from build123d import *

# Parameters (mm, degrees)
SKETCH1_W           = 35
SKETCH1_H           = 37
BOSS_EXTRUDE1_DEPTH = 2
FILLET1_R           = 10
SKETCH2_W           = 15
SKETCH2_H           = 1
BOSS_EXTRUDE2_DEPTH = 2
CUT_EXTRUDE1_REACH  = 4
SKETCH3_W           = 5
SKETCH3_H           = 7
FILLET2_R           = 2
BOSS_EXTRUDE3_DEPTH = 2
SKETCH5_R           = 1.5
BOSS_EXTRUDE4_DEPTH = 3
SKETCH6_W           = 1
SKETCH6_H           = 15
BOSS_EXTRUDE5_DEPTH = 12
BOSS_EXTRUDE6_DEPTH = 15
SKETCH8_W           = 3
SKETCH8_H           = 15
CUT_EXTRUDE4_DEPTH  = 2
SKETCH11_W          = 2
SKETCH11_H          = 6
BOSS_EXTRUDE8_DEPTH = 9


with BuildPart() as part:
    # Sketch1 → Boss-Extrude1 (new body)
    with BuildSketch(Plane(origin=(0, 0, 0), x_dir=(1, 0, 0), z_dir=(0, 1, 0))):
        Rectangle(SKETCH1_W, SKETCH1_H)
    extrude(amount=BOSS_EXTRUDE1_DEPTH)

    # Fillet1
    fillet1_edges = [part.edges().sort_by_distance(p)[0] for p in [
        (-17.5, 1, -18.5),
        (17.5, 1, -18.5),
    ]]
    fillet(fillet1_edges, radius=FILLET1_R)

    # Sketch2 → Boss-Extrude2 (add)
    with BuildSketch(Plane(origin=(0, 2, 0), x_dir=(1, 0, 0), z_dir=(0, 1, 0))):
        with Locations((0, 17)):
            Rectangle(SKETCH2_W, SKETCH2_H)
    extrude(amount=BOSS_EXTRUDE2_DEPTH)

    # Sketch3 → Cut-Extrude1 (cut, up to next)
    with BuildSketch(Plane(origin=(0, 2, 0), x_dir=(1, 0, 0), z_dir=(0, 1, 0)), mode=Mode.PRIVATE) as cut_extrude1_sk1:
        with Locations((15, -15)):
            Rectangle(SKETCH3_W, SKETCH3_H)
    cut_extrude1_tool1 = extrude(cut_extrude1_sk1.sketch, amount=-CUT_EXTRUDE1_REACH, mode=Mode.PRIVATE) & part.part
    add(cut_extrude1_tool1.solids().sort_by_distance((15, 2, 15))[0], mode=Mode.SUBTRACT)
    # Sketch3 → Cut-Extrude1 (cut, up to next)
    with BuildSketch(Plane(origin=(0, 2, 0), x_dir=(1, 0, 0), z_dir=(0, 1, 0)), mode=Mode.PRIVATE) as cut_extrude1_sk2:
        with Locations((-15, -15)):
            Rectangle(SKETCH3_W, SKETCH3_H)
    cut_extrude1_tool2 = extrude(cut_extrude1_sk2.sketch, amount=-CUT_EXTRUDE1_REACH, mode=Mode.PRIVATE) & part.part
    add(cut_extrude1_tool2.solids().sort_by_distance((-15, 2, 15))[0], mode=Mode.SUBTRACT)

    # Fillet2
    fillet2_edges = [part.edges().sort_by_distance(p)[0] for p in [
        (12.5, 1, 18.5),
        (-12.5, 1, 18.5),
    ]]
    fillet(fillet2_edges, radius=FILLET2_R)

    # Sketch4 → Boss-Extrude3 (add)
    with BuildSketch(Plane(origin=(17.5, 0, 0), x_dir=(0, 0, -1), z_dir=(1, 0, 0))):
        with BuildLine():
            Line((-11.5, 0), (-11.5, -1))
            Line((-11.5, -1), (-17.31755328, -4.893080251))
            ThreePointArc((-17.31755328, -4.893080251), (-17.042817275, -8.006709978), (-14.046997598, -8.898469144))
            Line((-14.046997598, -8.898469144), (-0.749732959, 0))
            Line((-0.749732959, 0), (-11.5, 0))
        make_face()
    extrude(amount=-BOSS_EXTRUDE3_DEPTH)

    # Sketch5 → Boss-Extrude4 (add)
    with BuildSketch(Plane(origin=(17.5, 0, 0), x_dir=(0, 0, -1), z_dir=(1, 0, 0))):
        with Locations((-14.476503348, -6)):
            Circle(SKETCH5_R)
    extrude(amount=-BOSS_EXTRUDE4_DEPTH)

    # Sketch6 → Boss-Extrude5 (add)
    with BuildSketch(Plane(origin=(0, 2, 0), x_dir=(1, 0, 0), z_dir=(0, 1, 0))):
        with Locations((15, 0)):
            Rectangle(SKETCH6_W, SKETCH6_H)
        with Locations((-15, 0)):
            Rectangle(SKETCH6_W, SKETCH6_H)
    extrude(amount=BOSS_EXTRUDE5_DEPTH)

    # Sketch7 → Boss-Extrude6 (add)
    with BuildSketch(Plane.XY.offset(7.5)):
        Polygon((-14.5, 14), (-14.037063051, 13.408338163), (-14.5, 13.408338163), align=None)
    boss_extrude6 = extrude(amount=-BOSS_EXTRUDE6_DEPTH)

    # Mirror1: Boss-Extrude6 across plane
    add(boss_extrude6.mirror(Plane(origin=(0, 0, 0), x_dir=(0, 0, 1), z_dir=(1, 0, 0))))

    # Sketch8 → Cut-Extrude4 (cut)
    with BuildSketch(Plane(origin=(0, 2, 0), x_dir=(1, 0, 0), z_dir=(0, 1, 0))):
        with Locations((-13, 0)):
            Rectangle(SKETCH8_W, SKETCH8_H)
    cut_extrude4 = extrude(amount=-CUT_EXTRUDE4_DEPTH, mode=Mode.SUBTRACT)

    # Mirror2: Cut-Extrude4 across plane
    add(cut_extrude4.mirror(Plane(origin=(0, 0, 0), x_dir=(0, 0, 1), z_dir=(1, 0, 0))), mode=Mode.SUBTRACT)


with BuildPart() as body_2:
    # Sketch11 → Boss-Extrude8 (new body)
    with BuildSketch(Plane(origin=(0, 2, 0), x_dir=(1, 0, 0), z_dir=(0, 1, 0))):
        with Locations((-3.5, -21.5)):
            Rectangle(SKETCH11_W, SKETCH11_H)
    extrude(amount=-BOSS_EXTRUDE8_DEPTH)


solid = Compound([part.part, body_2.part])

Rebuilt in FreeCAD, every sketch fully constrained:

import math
import FreeCAD as App
import Part
import Sketcher


def edges_at(feature, points):
    """Names of the edges that pass closest to the given points."""
    edges = feature.Shape.Edges
    near = lambda p: min(range(len(edges)), key=lambda i: edges[i].distToShape(Part.Vertex(*p))[0])
    return sorted({f"Edge{near(p) + 1}" for p in points})


def add_polygon(sketch, points):
    """Adds a closed chain of lines whose ends are joined by coincident constraints."""
    first, n = sketch.GeometryCount, len(points)
    for a, b in zip(points, points[1:] + points[:1]):
        sketch.addGeometry(Part.LineSegment(App.Vector(*a, 0), App.Vector(*b, 0)), False)
    for i in range(n):
        sketch.addConstraint(Sketcher.Constraint("Coincident", first + i, 2, first + (i + 1) % n, 1))

doc = App.newDocument("Part")
body = doc.addObject("PartDesign::Body", "Body")

sketch1 = body.newObject("Sketcher::SketchObject", "Sketch")
sketch1.AttachmentSupport = (doc.getObject("XZ_Plane"), [""])
sketch1.MapMode = "FlatFace"
add_polygon(sketch1, [(-18, -18), (-18, 18), (18, 18), (18, -18)])
sketch1.addConstraint([
    Sketcher.Constraint("Vertical", 0),
    Sketcher.Constraint("Horizontal", 1),
    Sketcher.Constraint("Vertical", 2),
    Sketcher.Constraint("Horizontal", 3),
    Sketcher.Constraint("Symmetric", 0, 2, 2, 2, -1, 1),
    Sketcher.Constraint("DistanceX", 1, 1, 1, 2, 35.0),
    Sketcher.Constraint("DistanceY", 0, 1, 0, 2, 37.0),
])
pad1 = body.newObject("PartDesign::Pad", "Pad")
pad1.Profile = sketch1
pad1.Length = 2
pad1.Reversed = True
doc.recompute()

fillet = body.newObject("PartDesign::Fillet", "Fillet")
fillet.Base = (pad1, edges_at(pad1, [(-17.5, 1, -18.5), (17.5, 1, -18.5)]))
fillet.Radius = 10

sketch2 = body.newObject("Sketcher::SketchObject", "Sketch001")
sketch2.AttachmentSupport = (doc.getObject("XZ_Plane"), [""])
sketch2.MapMode = "FlatFace"
sketch2.AttachmentOffset = App.Placement(App.Vector(0, 0, -2), App.Rotation())
add_polygon(sketch2, [(-7.5, -17.5), (-7.5, -16.5), (7.5, -16.5), (7.5, -17.5)])
sketch2.addConstraint([
    Sketcher.Constraint("Vertical", 0),
    Sketcher.Constraint("Horizontal", 1),
    Sketcher.Constraint("Vertical", 2),
    Sketcher.Constraint("Horizontal", 3),
    Sketcher.Constraint("DistanceX", 1, 1, 1, 2, 15.0),
    Sketcher.Constraint("DistanceY", 0, 1, 0, 2, 1.0),
    Sketcher.Constraint("DistanceX", 0, 2, -1, 1, 7.5),
    Sketcher.Constraint("DistanceY", 0, 2, -1, 1, 16.5),
])
pad2 = body.newObject("PartDesign::Pad", "Pad001")
pad2.Profile = sketch2
pad2.Length = 2
pad2.Reversed = True

sketch3 = body.newObject("Sketcher::SketchObject", "Sketch002")
sketch3.AttachmentSupport = (doc.getObject("XZ_Plane"), [""])
sketch3.MapMode = "FlatFace"
sketch3.AttachmentOffset = App.Placement(App.Vector(0, 0, -2), App.Rotation())
add_polygon(sketch3, [(12, 12), (12, 18), (18, 18), (18, 12)])
sketch3.addConstraint([
    Sketcher.Constraint("Vertical", 0),
    Sketcher.Constraint("Horizontal", 1),
    Sketcher.Constraint("Vertical", 2),
    Sketcher.Constraint("Horizontal", 3),
    Sketcher.Constraint("DistanceX", 1, 1, 1, 2, 5.0),
    Sketcher.Constraint("DistanceY", 0, 1, 0, 2, 7.0),
    Sketcher.Constraint("DistanceX", -1, 1, 0, 2, 12.5),
    Sketcher.Constraint("DistanceY", -1, 1, 0, 2, 18.5),
])
pocket1 = body.newObject("PartDesign::Pocket", "Pocket")
pocket1.Profile = sketch3
pocket1.Type = "UpToFirst"
pocket1.Reversed = True

sketch4 = body.newObject("Sketcher::SketchObject", "Sketch003")
sketch4.AttachmentSupport = (doc.getObject("XZ_Plane"), [""])
sketch4.MapMode = "FlatFace"
sketch4.AttachmentOffset = App.Placement(App.Vector(0, 0, -2), App.Rotation())
add_polygon(sketch4, [(-18, 12), (-18, 18), (-12, 18), (-12, 12)])
sketch4.addConstraint([
    Sketcher.Constraint("Vertical", 0),
    Sketcher.Constraint("Horizontal", 1),
    Sketcher.Constraint("Vertical", 2),
    Sketcher.Constraint("Horizontal", 3),
    Sketcher.Constraint("DistanceX", 1, 1, 1, 2, 5.0),
    Sketcher.Constraint("DistanceY", 0, 1, 0, 2, 7.0),
    Sketcher.Constraint("DistanceX", 0, 2, -1, 1, 17.5),
    Sketcher.Constraint("DistanceY", -1, 1, 0, 2, 18.5),
])
pocket2 = body.newObject("PartDesign::Pocket", "Pocket001")
pocket2.Profile = sketch4
pocket2.Type = "UpToFirst"
pocket2.Reversed = True
doc.recompute()

fillet2 = body.newObject("PartDesign::Fillet", "Fillet001")
fillet2.Base = (pocket2, edges_at(pocket2, [(12.5, 1, 18.5), (-12.5, 1, 18.5)]))
fillet2.Radius = 2

sketch5 = body.newObject("Sketcher::SketchObject", "Sketch004")
sketch5.AttachmentSupport = (doc.getObject("YZ_Plane"), [""])
sketch5.MapMode = "FlatFace"
sketch5.AttachmentOffset = App.Placement(App.Vector(0, 0, 17.5), App.Rotation())
sketch5.addGeometry([
    Part.LineSegment(App.Vector(0, 11.5, 0), App.Vector(-1, 11.5, 0)),
    Part.LineSegment(App.Vector(-1, 11.5, 0), App.Vector(-4.9, 17.3, 0)),
    Part.ArcOfCircle(Part.Circle(App.Vector(-6.2, 14.9, 0), App.Vector(0, 0, 1), 2.8), math.radians(61), math.radians(198)),
    Part.LineSegment(App.Vector(-8.9, 14, 0), App.Vector(0, 0.7, 0)),
    Part.LineSegment(App.Vector(0, 0.7, 0), App.Vector(0, 11.5, 0)),
], False)
sketch5.addConstraint([
    Sketcher.Constraint("Coincident", 0, 2, 1, 1),
    Sketcher.Constraint("Coincident", 1, 2, 2, 1),
    Sketcher.Constraint("Coincident", 2, 2, 3, 1),
    Sketcher.Constraint("Coincident", 3, 2, 4, 1),
    Sketcher.Constraint("Coincident", 4, 2, 0, 1),
    Sketcher.Constraint("Horizontal", 0),
    Sketcher.Constraint("Vertical", 4),
    Sketcher.Constraint("PointOnObject", 3, 2, -2),
    Sketcher.Constraint("Parallel", 1, 3),
    Sketcher.Constraint("DistanceX", 0, 2, 0, 1, 1.0),
    Sketcher.Constraint("Distance", 1, 7.0),
    Sketcher.Constraint("Distance", 3, 16.0),
    Sketcher.Constraint("DistanceY", -1, 1, 0, 2, 11.5),
    Sketcher.Constraint("Radius", 2, 2.781166),
    Sketcher.Constraint("DistanceY", 4, 1, 4, 2, 10.750267),
    Sketcher.Constraint("DistanceX", 2, 3, -1, 1, 6.247692),
])
pad3 = body.newObject("PartDesign::Pad", "Pad002")
pad3.Profile = sketch5
pad3.Length = 2
pad3.Reversed = True

sketch6 = body.newObject("Sketcher::SketchObject", "Sketch005")
sketch6.AttachmentSupport = (doc.getObject("YZ_Plane"), [""])
sketch6.MapMode = "FlatFace"
sketch6.AttachmentOffset = App.Placement(App.Vector(0, 0, 17.5), App.Rotation())
sketch6.addGeometry(Part.Circle(App.Vector(-6, 14.5, 0), App.Vector(0, 0, 1), 1.5), False)
sketch6.addConstraint([
    Sketcher.Constraint("Diameter", 0, 3.0),
    Sketcher.Constraint("DistanceX", 0, 3, -1, 1, 6.0),
    Sketcher.Constraint("DistanceY", -1, 1, 0, 3, 14.476503),
])
pad4 = body.newObject("PartDesign::Pad", "Pad003")
pad4.Profile = sketch6
pad4.Length = 3
pad4.Reversed = True

sketch7 = body.newObject("Sketcher::SketchObject", "Sketch006")
sketch7.AttachmentSupport = (doc.getObject("XZ_Plane"), [""])
sketch7.MapMode = "FlatFace"
sketch7.AttachmentOffset = App.Placement(App.Vector(0, 0, -2), App.Rotation())
add_polygon(sketch7, [(14.5, -7.5), (14.5, 7.5), (15.5, 7.5), (15.5, -7.5)])
add_polygon(sketch7, [(-15.5, -7.5), (-15.5, 7.5), (-14.5, 7.5), (-14.5, -7.5)])
sketch7.addConstraint([
    Sketcher.Constraint("Vertical", 0),
    Sketcher.Constraint("Horizontal", 1),
    Sketcher.Constraint("Vertical", 2),
    Sketcher.Constraint("Horizontal", 3),
    Sketcher.Constraint("Vertical", 4),
    Sketcher.Constraint("Horizontal", 5),
    Sketcher.Constraint("Vertical", 6),
    Sketcher.Constraint("Horizontal", 7),
    Sketcher.Constraint("Symmetric", 2, 2, 4, 2, -1, 1),
    Sketcher.Constraint("Symmetric", 0, 2, 6, 2, -1, 1),
    Sketcher.Constraint("Horizontal", 1, 2, 4, 2),
    Sketcher.Constraint("DistanceX", 1, 1, 1, 2, 1.0),
    Sketcher.Constraint("DistanceY", 0, 1, 0, 2, 15.0),
    Sketcher.Constraint("DistanceX", 4, 2, 0, 2, 30.0),
])
pad5 = body.newObject("PartDesign::Pad", "Pad004")
pad5.Profile = sketch7
pad5.Length = 12
pad5.Reversed = True

sketch8 = body.newObject("Sketcher::SketchObject", "Sketch007")
sketch8.AttachmentSupport = (doc.getObject("XY_Plane"), [""])
sketch8.MapMode = "FlatFace"
sketch8.AttachmentOffset = App.Placement(App.Vector(0, 0, 7.5), App.Rotation())
add_polygon(sketch8, [(-14.04, 13.41), (-14.5, 14), (-14.5, 13.41)])
sketch8.addConstraint([
    Sketcher.Constraint("Vertical", 1),
    Sketcher.Constraint("Horizontal", 2),
    Sketcher.Constraint("DistanceY", -1, 1, 0, 2, 14.0),
    Sketcher.Constraint("DistanceX", 0, 2, -1, 1, 14.5),
    Sketcher.Constraint("DistanceY", 1, 2, 1, 1, 0.591662),
    Sketcher.Constraint("Distance", 0, 0.751249),
])
pad6 = body.newObject("PartDesign::Pad", "Pad005")
pad6.Profile = sketch8
pad6.Length = 15
pad6.Reversed = True
doc.recompute()

mirrored = body.newObject("PartDesign::Mirrored", "Mirrored")
mirrored.Originals = [pad6]
mirrored.MirrorPlane = (doc.getObject("YZ_Plane"), [""])
body.Tip = mirrored

sketch9 = body.newObject("Sketcher::SketchObject", "Sketch008")
sketch9.AttachmentSupport = (doc.getObject("XZ_Plane"), [""])
sketch9.MapMode = "FlatFace"
sketch9.AttachmentOffset = App.Placement(App.Vector(0, 0, -2), App.Rotation())
add_polygon(sketch9, [(-14.5, -7.5), (-14.5, 7.5), (-11.5, 7.5), (-11.5, -7.5)])
sketch9.addConstraint([
    Sketcher.Constraint("Vertical", 0),
    Sketcher.Constraint("Horizontal", 1),
    Sketcher.Constraint("Vertical", 2),
    Sketcher.Constraint("Horizontal", 3),
    Sketcher.Constraint("DistanceX", 1, 1, 1, 2, 3.0),
    Sketcher.Constraint("DistanceY", 0, 1, 0, 2, 15.0),
    Sketcher.Constraint("DistanceX", 0, 2, -1, 1, 14.5),
    Sketcher.Constraint("DistanceY", -1, 1, 0, 2, 7.5),
])
pocket3 = body.newObject("PartDesign::Pocket", "Pocket002")
pocket3.Profile = sketch9
pocket3.Length = 2
pocket3.Reversed = True
doc.recompute()

mirrored2 = body.newObject("PartDesign::Mirrored", "Mirrored001")
mirrored2.Originals = [pocket3]
mirrored2.MirrorPlane = (doc.getObject("YZ_Plane"), [""])
body.Tip = mirrored2
body2 = doc.addObject("PartDesign::Body", "Body001")

sketch10 = body2.newObject("Sketcher::SketchObject", "Sketch009")
sketch10.AttachmentSupport = (doc.getObject("XZ_Plane001"), [""])
sketch10.MapMode = "FlatFace"
sketch10.AttachmentOffset = App.Placement(App.Vector(0, 0, -2), App.Rotation())
add_polygon(sketch10, [(-4.5, 18.5), (-4.5, 24.5), (-2.5, 24.5), (-2.5, 18.5)])
sketch10.addConstraint([
    Sketcher.Constraint("Vertical", 0),
    Sketcher.Constraint("Horizontal", 1),
    Sketcher.Constraint("Vertical", 2),
    Sketcher.Constraint("Horizontal", 3),
    Sketcher.Constraint("DistanceX", 1, 1, 1, 2, 2.0),
    Sketcher.Constraint("DistanceY", 0, 1, 0, 2, 6.0),
    Sketcher.Constraint("DistanceX", 0, 2, -1, 1, 4.5),
    Sketcher.Constraint("DistanceY", -1, 1, 0, 2, 24.5),
])
pad7 = body2.newObject("PartDesign::Pad", "Pad006")
pad7.Profile = sketch10
pad7.Length = 9

doc.recompute()
